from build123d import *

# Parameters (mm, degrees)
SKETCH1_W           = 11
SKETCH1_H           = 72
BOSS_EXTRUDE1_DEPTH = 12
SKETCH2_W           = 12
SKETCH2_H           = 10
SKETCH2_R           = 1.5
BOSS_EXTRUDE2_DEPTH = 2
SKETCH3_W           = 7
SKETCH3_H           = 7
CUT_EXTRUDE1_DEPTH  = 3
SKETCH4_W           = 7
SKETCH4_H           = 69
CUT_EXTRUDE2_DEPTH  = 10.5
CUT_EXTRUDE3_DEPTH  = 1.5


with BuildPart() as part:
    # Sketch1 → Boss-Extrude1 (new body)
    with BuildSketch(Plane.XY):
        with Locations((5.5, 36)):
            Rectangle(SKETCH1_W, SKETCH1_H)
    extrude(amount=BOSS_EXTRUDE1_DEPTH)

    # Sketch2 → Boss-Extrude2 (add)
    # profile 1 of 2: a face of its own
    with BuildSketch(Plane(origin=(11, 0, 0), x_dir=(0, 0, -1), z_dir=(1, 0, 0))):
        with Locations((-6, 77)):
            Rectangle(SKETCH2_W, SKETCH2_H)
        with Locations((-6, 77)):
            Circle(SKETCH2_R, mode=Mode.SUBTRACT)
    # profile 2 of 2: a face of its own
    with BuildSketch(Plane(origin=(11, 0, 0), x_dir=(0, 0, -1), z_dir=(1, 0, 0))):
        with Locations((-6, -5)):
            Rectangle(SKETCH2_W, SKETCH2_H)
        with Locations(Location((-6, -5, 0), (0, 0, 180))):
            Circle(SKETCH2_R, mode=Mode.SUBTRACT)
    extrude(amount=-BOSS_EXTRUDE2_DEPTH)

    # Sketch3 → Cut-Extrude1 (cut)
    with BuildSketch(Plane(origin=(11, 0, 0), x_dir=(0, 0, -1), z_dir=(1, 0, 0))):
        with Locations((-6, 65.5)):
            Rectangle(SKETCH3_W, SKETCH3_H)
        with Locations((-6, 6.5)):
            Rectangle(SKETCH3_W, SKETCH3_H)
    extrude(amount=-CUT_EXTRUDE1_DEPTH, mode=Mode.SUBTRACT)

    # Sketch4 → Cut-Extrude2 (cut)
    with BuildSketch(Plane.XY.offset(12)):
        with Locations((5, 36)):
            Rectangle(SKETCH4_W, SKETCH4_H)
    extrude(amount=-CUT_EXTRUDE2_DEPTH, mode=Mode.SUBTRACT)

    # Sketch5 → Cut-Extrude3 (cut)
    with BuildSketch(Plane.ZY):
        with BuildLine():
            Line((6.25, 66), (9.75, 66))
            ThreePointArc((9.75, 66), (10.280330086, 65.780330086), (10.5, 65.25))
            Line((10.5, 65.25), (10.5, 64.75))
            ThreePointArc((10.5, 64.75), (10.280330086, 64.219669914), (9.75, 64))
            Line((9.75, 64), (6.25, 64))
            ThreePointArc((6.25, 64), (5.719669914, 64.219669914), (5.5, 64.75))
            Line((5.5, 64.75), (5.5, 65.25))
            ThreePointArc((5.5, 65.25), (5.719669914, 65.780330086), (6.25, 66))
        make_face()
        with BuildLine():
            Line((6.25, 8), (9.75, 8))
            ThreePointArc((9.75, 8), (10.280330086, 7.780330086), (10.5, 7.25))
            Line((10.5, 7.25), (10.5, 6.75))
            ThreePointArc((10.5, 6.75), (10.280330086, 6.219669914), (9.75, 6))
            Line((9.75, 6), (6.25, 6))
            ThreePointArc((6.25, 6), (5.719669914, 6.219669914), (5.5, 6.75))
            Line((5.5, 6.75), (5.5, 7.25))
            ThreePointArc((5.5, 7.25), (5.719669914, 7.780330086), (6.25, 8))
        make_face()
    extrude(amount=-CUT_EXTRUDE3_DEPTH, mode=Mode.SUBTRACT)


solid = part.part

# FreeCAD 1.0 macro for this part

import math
import FreeCAD as App
import Part
import Sketcher

V = App.Vector
Q = App.Units.Quantity


def add_polygon(sketch, points):
    """Adds a closed chain of lines whose ends are joined by coincident constraints."""
    first, n = sketch.GeometryCount, len(points)
    for a, b in zip(points, points[1:] + points[:1]):
        sketch.addGeometry(Part.LineSegment(App.Vector(*a, 0), App.Vector(*b, 0)), False)
    for i in range(n):
        sketch.addConstraint(Sketcher.Constraint("Coincident", first + i, 2, first + (i + 1) % n, 1))

doc = App.newDocument("Part")
body = doc.addObject("PartDesign::Body", "Body")

sketch1 = doc.addObject("Sketcher::SketchObject", "Sketch")
body.addObject(sketch1)
sketch1.AttachmentSupport = (doc.XY_Plane, [""])
sketch1.MapMode = "FlatFace"
add_polygon(sketch1, [(0, 72), (0, 0), (11, 0), (11, 72)])
sketch1.addConstraint([
    Sketcher.Constraint("Vertical", 0),
    Sketcher.Constraint("Horizontal", 1),
    Sketcher.Constraint("Vertical", 2),
    Sketcher.Constraint("Horizontal", 3),
    Sketcher.Constraint("Coincident", 0, 2, -1, 1),
    Sketcher.Constraint("DistanceX", 1, 1, 1, 2, Q("11 mm")),
    Sketcher.Constraint("DistanceY", 0, 2, 0, 1, Q("72 mm")),
])
pad1 = doc.addObject("PartDesign::Pad", "Pad")
body.addObject(pad1)
pad1.Profile = sketch1
pad1.Length = 12

sketch2 = doc.addObject("Sketcher::SketchObject", "Sketch001")
body.addObject(sketch2)
sketch2.AttachmentSupport = (doc.YZ_Plane, [""])
sketch2.MapMode = "FlatFace"
sketch2.AttachmentOffset = App.Placement(V(0, 0, 11), App.Rotation())
add_polygon(sketch2, [(82, 12), (72, 12), (72, 0), (82, 0)])
sketch2.addGeometry(Part.Circle(V(77, 6, 0), V(0, 0, 1), 1.5), False)
add_polygon(sketch2, [(0, 12), (-10, 12), (-10, 0), (0, 0)])
sketch2.addGeometry(Part.Circle(V(-5, 6, 0), V(0, 0, 1), 1.5), False)
sketch2.addConstraint([
    Sketcher.Constraint("Horizontal", 0),
    Sketcher.Constraint("Vertical", 1),
    Sketcher.Constraint("Horizontal", 2),
    Sketcher.Constraint("Vertical", 3),
    Sketcher.Constraint("Horizontal", 5),
    Sketcher.Constraint("Vertical", 6),
    Sketcher.Constraint("Horizontal", 7),
    Sketcher.Constraint("Vertical", 8),
    Sketcher.Constraint("Coincident", 7, 2, -1, 1),
    Sketcher.Constraint("Equal", 4, 9),
    Sketcher.Constraint("PointOnObject", 1, 2, -1),
    Sketcher.Constraint("Horizontal", 4, 3, 9, 3),
    Sketcher.Constraint("Horizontal", 3, 2, 5, 2),
    Sketcher.Constraint("Equal", 2, 5),
    Sketcher.Constraint("Diameter", 4, Q("3 mm")),
    Sketcher.Constraint("DistanceX", 0, 2, 0, 1, Q("10 mm")),
    Sketcher.Constraint("DistanceY", 1, 2, 1, 1, Q("12 mm")),
    Sketcher.Constraint("DistanceX", -1, 1, 4, 3, Q("77 mm")),
    Sketcher.Constraint("DistanceY", -1, 1, 4, 3, Q("6 mm")),
    Sketcher.Constraint("DistanceX", 9, 3, -1, 1, Q("5 mm")),
    Sketcher.Constraint("DistanceX", -1, 1, 0, 2, Q("72 mm")),
])
pad2 = doc.addObject("PartDesign::Pad", "Pad001")
body.addObject(pad2)
pad2.Profile = sketch2
pad2.Length = 2
pad2.Reversed = True

sketch3 = doc.addObject("Sketcher::SketchObject", "Sketch002")
body.addObject(sketch3)
sketch3.AttachmentSupport = (doc.YZ_Plane, [""])
sketch3.MapMode = "FlatFace"
sketch3.AttachmentOffset = App.Placement(V(0, 0, 11), App.Rotation())
add_polygon(sketch3, [(69, 10), (62, 10), (62, 2), (69, 2)])
add_polygon(sketch3, [(10, 10), (3, 10), (3, 2), (10, 2)])
sketch3.addConstraint([
    Sketcher.Constraint("Horizontal", 0),
    Sketcher.Constraint("Vertical", 1),
    Sketcher.Constraint("Horizontal", 2),
    Sketcher.Constraint("Vertical", 3),
    Sketcher.Constraint("Horizontal", 4),
    Sketcher.Constraint("Vertical", 5),
    Sketcher.Constraint("Horizontal", 6),
    Sketcher.Constraint("Vertical", 7),
    Sketcher.Constraint("Horizontal", 3, 2, 4, 2),
    Sketcher.Constraint("Horizontal", 2, 2, 5, 2),
    Sketcher.Constraint("Equal", 2, 4),
    Sketcher.Constraint("Equal", 6, 1),
    Sketcher.Constraint("DistanceX", 0, 2, 0, 1, Q("7 mm")),
    Sketcher.Constraint("DistanceX", -1, 1, 0, 2, Q("62 mm")),
    Sketcher.Constraint("DistanceX", -1, 1, 4, 2, Q("3 mm")),
    Sketcher.Constraint("DistanceY", -1, 1, 0, 2, Q("9.5 mm")),
])
pocket1 = doc.addObject("PartDesign::Pocket", "Pocket")
body.addObject(pocket1)
pocket1.Profile = sketch3
pocket1.Length = 3

sketch4 = doc.addObject("Sketcher::SketchObject", "Sketch003")
body.addObject(sketch4)
sketch4.AttachmentSupport = (doc.XY_Plane, [""])
sketch4.MapMode = "FlatFace"
sketch4.AttachmentOffset = App.Placement(V(0, 0, 12), App.Rotation())
add_polygon(sketch4, [(2, 70), (2, 2), (8, 2), (8, 70)])
sketch4.addConstraint([
    Sketcher.Constraint("Vertical", 0),
    Sketcher.Constraint("Horizontal", 1),
    Sketcher.Constraint("Vertical", 2),
    Sketcher.Constraint("Horizontal", 3),
    Sketcher.Constraint("DistanceX", 1, 1, 1, 2, Q("7 mm")),
    Sketcher.Constraint("DistanceY", 0, 2, 0, 1, Q("69 mm")),
    Sketcher.Constraint("DistanceX", -1, 1, 0, 2, Q("1.5 mm")),
    Sketcher.Constraint("DistanceY", -1, 1, 0, 2, Q("1.5 mm")),
])
pocket2 = doc.addObject("PartDesign::Pocket", "Pocket001")
body.addObject(pocket2)
pocket2.Profile = sketch4
pocket2.Length = 10.5

sketch5 = doc.addObject("Sketcher::SketchObject", "Sketch004")
body.addObject(sketch5)
sketch5.AttachmentSupport = (doc.YZ_Plane, [""])
sketch5.MapMode = "FlatFace"
sketch5.addGeometry([
    Part.LineSegment(V(66, 9.8, 0), V(66, 6.2, 0)),
    Part.ArcOfCircle(Part.Circle(V(65.2, 6.2, 0), V(0, 0, 1), 0.8), math.radians(-90), math.radians(0)),
    Part.LineSegment(V(65.2, 5.5, 0), V(64.8, 5.5, 0)),
    Part.ArcOfCircle(Part.Circle(V(64.8, 6.2, 0), V(0, 0, 1), 0.8), math.radians(180), math.radians(270)),
    Part.LineSegment(V(64, 6.2, 0), V(64, 9.8, 0)),
    Part.ArcOfCircle(Part.Circle(V(64.8, 9.8, 0), V(0, 0, 1), 0.8), math.radians(90), math.radians(180)),
    Part.LineSegment(V(64.8, 10.5, 0), V(65.2, 10.5, 0)),
    Part.ArcOfCircle(Part.Circle(V(65.2, 9.8, 0), V(0, 0, 1), 0.8), math.radians(0), math.radians(90)),
    Part.LineSegment(V(8, 9.8, 0), V(8, 6.2, 0)),
    Part.ArcOfCircle(Part.Circle(V(7.2, 6.2, 0), V(0, 0, 1), 0.8), math.radians(-90), math.radians(0)),
    Part.LineSegment(V(7.2, 5.5, 0), V(6.8, 5.5, 0)),
    Part.ArcOfCircle(Part.Circle(V(6.8, 6.2, 0), V(0, 0, 1), 0.8), math.radians(180), math.radians(270)),
    Part.LineSegment(V(6, 6.2, 0), V(6, 9.8, 0)),
    Part.ArcOfCircle(Part.Circle(V(6.8, 9.8, 0), V(0, 0, 1), 0.8), math.radians(90), math.radians(180)),
    Part.LineSegment(V(6.8, 10.5, 0), V(7.2, 10.5, 0)),
    Part.ArcOfCircle(Part.Circle(V(7.2, 9.8, 0), V(0, 0, 1), 0.8), math.radians(0), math.radians(90)),
], False)
sketch5.addConstraint([
    Sketcher.Constraint("Tangent", 0, 2, 1, 2),
    Sketcher.Constraint("Tangent", 1, 1, 2, 1),
    Sketcher.Constraint("Tangent", 2, 2, 3, 2),
    Sketcher.Constraint("Tangent", 3, 1, 4, 1),
    Sketcher.Constraint("Tangent", 4, 2, 5, 2),
    Sketcher.Constraint("Tangent", 5, 1, 6, 1),
    Sketcher.Constraint("Tangent", 6, 2, 7, 2),
    Sketcher.Constraint("Tangent", 7, 1, 0, 1),
    Sketcher.Constraint("Tangent", 8, 2, 9, 2),
    Sketcher.Constraint("Tangent", 9, 1, 10, 1),
    Sketcher.Constraint("Tangent", 10, 2, 11, 2),
    Sketcher.Constraint("Tangent", 11, 1, 12, 1),
    Sketcher.Constraint("Tangent", 12, 2, 13, 2),
    Sketcher.Constraint("Tangent", 13, 1, 14, 1),
    Sketcher.Constraint("Tangent", 14, 2, 15, 2),
    Sketcher.Constraint("Tangent", 15, 1, 8, 1),
    Sketcher.Constraint("Vertical", 0),
    Sketcher.Constraint("Horizontal", 2),
    Sketcher.Constraint("Vertical", 4),
    Sketcher.Constraint("Horizontal", 6),
    Sketcher.Constraint("Vertical", 8),
    Sketcher.Constraint("Horizontal", 10),
    Sketcher.Constraint("Vertical", 12),
    Sketcher.Constraint("Horizontal", 14),
    Sketcher.Constraint("Equal", 1, 3),
    Sketcher.Constraint("Equal", 3, 5),
    Sketcher.Constraint("Equal", 5, 7),
    Sketcher.Constraint("Equal", 7, 9),
    Sketcher.Constraint("Equal", 9, 11),
    Sketcher.Constraint("Equal", 11, 13),
    Sketcher.Constraint("Equal", 13, 15),
    Sketcher.Constraint("Horizontal", 3, 3, 9, 3),
    Sketcher.Constraint("Horizontal", 7, 3, 13, 3),
    Sketcher.Constraint("Equal", 6, 10),
    Sketcher.Constraint("Radius", 1, Q("0.75 mm")),
    Sketcher.Constraint("DistanceX", 2, 2, 2, 1, Q("0.5 mm")),
    Sketcher.Constraint("DistanceY", 0, 2, 0, 1, Q("3.5 mm")),
    Sketcher.Constraint("DistanceX", -1, 1, 0, 2, Q("66 mm")),
    Sketcher.Constraint("DistanceX", -1, 1, 8, 2, Q("8 mm")),
    Sketcher.Constraint("DistanceY", -1, 1, 1, 1, Q("5.5 mm")),
])
pocket3 = doc.addObject("PartDesign::Pocket", "Pocket002")
body.addObject(pocket3)
pocket3.Profile = sketch5
pocket3.Length = 1.5
pocket3.Reversed = True

doc.recompute()
